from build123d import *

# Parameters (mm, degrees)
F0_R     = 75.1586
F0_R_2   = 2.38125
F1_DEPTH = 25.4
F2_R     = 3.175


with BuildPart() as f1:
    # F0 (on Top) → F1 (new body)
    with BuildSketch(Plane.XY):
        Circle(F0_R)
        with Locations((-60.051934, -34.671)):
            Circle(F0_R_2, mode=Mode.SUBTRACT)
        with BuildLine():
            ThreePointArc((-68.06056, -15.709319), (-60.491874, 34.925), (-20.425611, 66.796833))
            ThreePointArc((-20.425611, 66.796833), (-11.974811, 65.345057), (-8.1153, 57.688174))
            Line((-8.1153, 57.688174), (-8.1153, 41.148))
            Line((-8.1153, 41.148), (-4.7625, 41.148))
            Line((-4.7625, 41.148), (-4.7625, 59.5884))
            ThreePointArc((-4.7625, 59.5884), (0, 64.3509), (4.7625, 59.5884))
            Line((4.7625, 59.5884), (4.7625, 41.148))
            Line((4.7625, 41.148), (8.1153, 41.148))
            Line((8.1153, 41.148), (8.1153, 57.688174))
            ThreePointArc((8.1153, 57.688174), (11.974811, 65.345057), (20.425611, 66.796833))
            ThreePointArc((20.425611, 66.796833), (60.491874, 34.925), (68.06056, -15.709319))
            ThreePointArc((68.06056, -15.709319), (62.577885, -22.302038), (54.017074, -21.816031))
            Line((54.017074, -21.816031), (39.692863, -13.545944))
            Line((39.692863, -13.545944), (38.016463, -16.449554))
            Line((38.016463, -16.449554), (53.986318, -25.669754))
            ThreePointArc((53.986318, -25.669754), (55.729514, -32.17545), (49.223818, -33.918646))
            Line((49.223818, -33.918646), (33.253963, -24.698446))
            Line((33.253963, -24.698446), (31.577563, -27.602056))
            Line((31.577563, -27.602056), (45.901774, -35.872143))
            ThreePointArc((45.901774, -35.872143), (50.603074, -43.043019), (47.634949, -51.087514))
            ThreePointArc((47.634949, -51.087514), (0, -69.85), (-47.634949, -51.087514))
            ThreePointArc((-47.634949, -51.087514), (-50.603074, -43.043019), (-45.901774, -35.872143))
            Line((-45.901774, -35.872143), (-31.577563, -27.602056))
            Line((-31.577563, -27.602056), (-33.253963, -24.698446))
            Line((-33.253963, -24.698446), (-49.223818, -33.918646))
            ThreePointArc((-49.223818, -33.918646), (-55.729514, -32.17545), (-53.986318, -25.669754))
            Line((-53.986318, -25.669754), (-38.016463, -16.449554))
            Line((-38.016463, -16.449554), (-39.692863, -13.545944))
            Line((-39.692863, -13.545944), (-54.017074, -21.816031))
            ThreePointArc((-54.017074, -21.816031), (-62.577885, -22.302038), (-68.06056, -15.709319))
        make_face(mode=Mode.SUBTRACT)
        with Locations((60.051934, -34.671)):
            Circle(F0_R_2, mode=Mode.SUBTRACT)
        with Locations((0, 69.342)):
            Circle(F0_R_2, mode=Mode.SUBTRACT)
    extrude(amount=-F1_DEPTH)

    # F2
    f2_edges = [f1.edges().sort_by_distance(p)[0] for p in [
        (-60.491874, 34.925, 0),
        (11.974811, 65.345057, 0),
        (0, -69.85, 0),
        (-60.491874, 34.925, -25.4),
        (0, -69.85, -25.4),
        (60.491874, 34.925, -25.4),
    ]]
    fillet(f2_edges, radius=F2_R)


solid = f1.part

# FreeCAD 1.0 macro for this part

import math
import FreeCAD as App
import Part
import Sketcher

V = App.Vector
Q = App.Units.Quantity


def edges_at(feature, points):
    """Names of the edges that pass closest to the given points."""
    edges = feature.Shape.Edges
    near = lambda p: min(range(len(edges)), key=lambda i: edges[i].distToShape(Part.Vertex(*p))[0])
    return sorted({f"Edge{near(p) + 1}" for p in points})

doc = App.newDocument("Part")
params = doc.addObject("Spreadsheet::Sheet", "Params")
for row, (alias, value) in enumerate([
    ("sketch1_radius", "2.75 in"),
    ("sketch1_radius2", "2.75 in"),
    ("sketch1_diameter", "5.918 in"),
    ("sketch1_diameter2", "0.1875 in"),
    ("sketch1_radius3", "0.375 in"),
    ("pad1_length", "1 in"),
    ("fillet_radius", "0.125 in"),
], start=1):
    params.set(f"A{row}", alias)
    params.set(f"B{row}", "=" + value)
    params.setAlias(f"B{row}", alias)

body = doc.addObject("PartDesign::Body", "Body")

# Sketch on XY plane
sketch1 = doc.addObject("Sketcher::SketchObject", "Sketch")
body.addObject(sketch1)
sketch1.AttachmentSupport = (doc.XY_Plane, [""])
sketch1.MapMode = "FlatFace"
sketch1.addGeometry(Part.Circle(V(0, 0, 0), V(0, 0, 1), 75.1586), False)
sketch1.addGeometry(Part.Circle(V(-60.051934, -34.671, 0), V(0, 0, 1), 2.38125), False)
sketch1.addGeometry(Part.Circle(V(60.051934, -34.671, 0), V(0, 0, 1), 2.38125), False)
sketch1.addGeometry(Part.ArcOfCircle(Part.Circle(V(-58.779574, -13.567138, 0), V(0, 0, 1), 9.525001), math.radians(-167.002953), math.radians(-60.000001)), False)
sketch1.addGeometry(Part.ArcOfCircle(Part.Circle(V(0.000001, -0.000001, 0), V(0, 0, 1), 69.850001), math.radians(107.002958), math.radians(192.997042)), False)
sketch1.addGeometry(Part.ArcOfCircle(Part.Circle(V(-17.6403, 57.688174, 0), V(0, 0, 1), 9.525), math.radians(0.000002), math.radians(107.002958)), False)
sketch1.addGeometry(Part.LineSegment(V(-8.1153, 57.688174, 0), V(-8.1153, 41.148, 0)), False)
sketch1.addGeometry(Part.LineSegment(V(-8.1153, 41.148, 0), V(-4.7625, 41.148, 0)), False)
sketch1.addGeometry(Part.LineSegment(V(-4.7625, 41.148, 0), V(-4.7625, 59.5884, 0)), False)
sketch1.addGeometry(Part.ArcOfCircle(Part.Circle(V(0, 59.5884, 0), V(0, 0, 1), 4.7625), math.radians(0), math.radians(180)), False)
sketch1.addGeometry(Part.LineSegment(V(4.7625, 59.5884, 0), V(4.7625, 41.148, 0)), False)
sketch1.addGeometry(Part.LineSegment(V(4.7625, 41.148, 0), V(8.1153, 41.148, 0)), False)
sketch1.addGeometry(Part.LineSegment(V(8.1153, 41.148, 0), V(8.1153, 57.688174, 0)), False)
sketch1.addGeometry(Part.ArcOfCircle(Part.Circle(V(17.6403, 57.688174, 0), V(0, 0, 1), 9.525), math.radians(72.997042), math.radians(179.999998)), False)
sketch1.addGeometry(Part.ArcOfCircle(Part.Circle(V(-0.000001, -0.000001, 0), V(0, 0, 1), 69.850001), math.radians(-12.997042), math.radians(72.997042)), False)
sketch1.addGeometry(Part.ArcOfCircle(Part.Circle(V(58.779574, -13.567138, 0), V(0, 0, 1), 9.525001), math.radians(-119.999999), math.radians(-12.997047)), False)
sketch1.addGeometry(Part.LineSegment(V(54.017074, -21.816031, 0), V(39.692863, -13.545944, 0)), False)
sketch1.addGeometry(Part.LineSegment(V(39.692863, -13.545944, 0), V(38.016463, -16.449554, 0)), False)
sketch1.addGeometry(Part.LineSegment(V(38.016463, -16.449554, 0), V(53.986318, -25.669754, 0)), False)
sketch1.addGeometry(Part.ArcOfCircle(Part.Circle(V(51.605068, -29.7942, 0), V(0, 0, 1), 4.7625), math.radians(-120), math.radians(60)), False)
sketch1.addGeometry(Part.LineSegment(V(49.223818, -33.918646, 0), V(33.253963, -24.698446, 0)), False)
sketch1.addGeometry(Part.LineSegment(V(33.253963, -24.698446, 0), V(31.577563, -27.602056, 0)), False)
sketch1.addGeometry(Part.LineSegment(V(31.577563, -27.602056, 0), V(45.901774, -35.872143, 0)), False)
sketch1.addGeometry(Part.ArcOfCircle(Part.Circle(V(41.139275, -44.121035, 0), V(0, 0, 1), 9.525), math.radians(-47.002958), math.radians(60.000003)), False)
sketch1.addGeometry(Part.ArcOfCircle(Part.Circle(V(0, -0.000001, 0), V(0, 0, 1), 69.849999), math.radians(-132.997044), math.radians(-47.002956)), False)
sketch1.addGeometry(Part.ArcOfCircle(Part.Circle(V(-41.139275, -44.121035, 0), V(0, 0, 1), 9.525), math.radians(119.999997), math.radians(227.002958)), False)
sketch1.addGeometry(Part.LineSegment(V(-45.901774, -35.872143, 0), V(-31.577563, -27.602056, 0)), False)
sketch1.addGeometry(Part.LineSegment(V(-31.577563, -27.602056, 0), V(-33.253963, -24.698446, 0)), False)
sketch1.addGeometry(Part.LineSegment(V(-33.253963, -24.698446, 0), V(-49.223818, -33.918646, 0)), False)
sketch1.addGeometry(Part.ArcOfCircle(Part.Circle(V(-51.605068, -29.7942, 0), V(0, 0, 1), 4.7625), math.radians(120), math.radians(300)), False)
sketch1.addGeometry(Part.LineSegment(V(-53.986318, -25.669754, 0), V(-38.016463, -16.449554, 0)), False)
sketch1.addGeometry(Part.LineSegment(V(-38.016463, -16.449554, 0), V(-39.692863, -13.545944, 0)), False)
sketch1.addGeometry(Part.LineSegment(V(-39.692863, -13.545944, 0), V(-54.017074, -21.816031, 0)), False)
sketch1.addGeometry(Part.Circle(V(0, 69.342, 0), V(0, 0, 1), 2.38125), False)
sketch1.addConstraint(Sketcher.Constraint("Tangent", 3, 1, 4, 2))
sketch1.addConstraint(Sketcher.Constraint("Tangent", 4, 1, 5, 2))
sketch1.addConstraint(Sketcher.Constraint("Tangent", 5, 1, 6, 1))
sketch1.addConstraint(Sketcher.Constraint("Coincident", 6, 2, 7, 1))
sketch1.addConstraint(Sketcher.Constraint("Coincident", 7, 2, 8, 1))
sketch1.addConstraint(Sketcher.Constraint("Tangent", 8, 2, 9, 2))
sketch1.addConstraint(Sketcher.Constraint("Tangent", 9, 1, 10, 1))
sketch1.addConstraint(Sketcher.Constraint("Coincident", 10, 2, 11, 1))
sketch1.addConstraint(Sketcher.Constraint("Coincident", 11, 2, 12, 1))
sketch1.addConstraint(Sketcher.Constraint("Tangent", 12, 2, 13, 2))
sketch1.addConstraint(Sketcher.Constraint("Tangent", 13, 1, 14, 2))
sketch1.addConstraint(Sketcher.Constraint("Tangent", 14, 1, 15, 2))
sketch1.addConstraint(Sketcher.Constraint("Tangent", 15, 1, 16, 1))
sketch1.addConstraint(Sketcher.Constraint("Coincident", 16, 2, 17, 1))
sketch1.addConstraint(Sketcher.Constraint("Coincident", 17, 2, 18, 1))
sketch1.addConstraint(Sketcher.Constraint("Tangent", 18, 2, 19, 2))
sketch1.addConstraint(Sketcher.Constraint("Tangent", 19, 1, 20, 1))
sketch1.addConstraint(Sketcher.Constraint("Coincident", 20, 2, 21, 1))
sketch1.addConstraint(Sketcher.Constraint("Coincident", 21, 2, 22, 1))
sketch1.addConstraint(Sketcher.Constraint("Tangent", 22, 2, 23, 2))
sketch1.addConstraint(Sketcher.Constraint("Tangent", 23, 1, 24, 2))
sketch1.addConstraint(Sketcher.Constraint("Tangent", 24, 1, 25, 2))
sketch1.addConstraint(Sketcher.Constraint("Tangent", 25, 1, 26, 1))
sketch1.addConstraint(Sketcher.Constraint("Coincident", 26, 2, 27, 1))
sketch1.addConstraint(Sketcher.Constraint("Coincident", 27, 2, 28, 1))
sketch1.addConstraint(Sketcher.Constraint("Tangent", 28, 2, 29, 2))
sketch1.addConstraint(Sketcher.Constraint("Tangent", 29, 1, 30, 1))
sketch1.addConstraint(Sketcher.Constraint("Coincident", 30, 2, 31, 1))
sketch1.addConstraint(Sketcher.Constraint("Coincident", 31, 2, 32, 1))
sketch1.addConstraint(Sketcher.Constraint("Tangent", 32, 2, 3, 2))
sketch1.addConstraint(Sketcher.Constraint("Vertical", 6))
sketch1.addConstraint(Sketcher.Constraint("Horizontal", 7))
sketch1.addConstraint(Sketcher.Constraint("Vertical", 8))
sketch1.addConstraint(Sketcher.Constraint("Vertical", 10))
sketch1.addConstraint(Sketcher.Constraint("Horizontal", 11))
sketch1.addConstraint(Sketcher.Constraint("Vertical", 12))
sketch1.addConstraint(Sketcher.Constraint("Coincident", 0, 3, -1, 1))
sketch1.addConstraint(Sketcher.Constraint("Coincident", 4, 3, -1, 1))
sketch1.addConstraint(Sketcher.Constraint("Coincident", 14, 3, -1, 1))
sketch1.addConstraint(Sketcher.Constraint("Coincident", 24, 3, -1, 1))
sketch1.addConstraint(Sketcher.Constraint("Equal", 1, 2))
sketch1.addConstraint(Sketcher.Constraint("Equal", 3, 5))
sketch1.addConstraint(Sketcher.Constraint("Equal", 5, 13))
sketch1.addConstraint(Sketcher.Constraint("Equal", 4, 14))
sketch1.addConstraint(Sketcher.Constraint("Equal", 13, 15))
sketch1.addConstraint(Sketcher.Constraint("Equal", 9, 19))
sketch1.addConstraint(Sketcher.Constraint("Equal", 15, 23))
sketch1.addConstraint(Sketcher.Constraint("Equal", 23, 25))
sketch1.addConstraint(Sketcher.Constraint("Equal", 19, 29))
sketch1.addConstraint(Sketcher.Constraint("Equal", 2, 33))
sketch1.addConstraint(Sketcher.Constraint("Symmetric", 1, 3, 2, 3, -2))
sketch1.addConstraint(Sketcher.Constraint("Symmetric", 19, 3, 29, 3, -2))
sketch1.addConstraint(Sketcher.Constraint("Symmetric", 7, 2, 10, 2, -2))
sketch1.addConstraint(Sketcher.Constraint("Symmetric", 22, 2, 25, 1, -2))
sketch1.addConstraint(Sketcher.Constraint("Symmetric", 20, 2, 27, 2, -2))
sketch1.addConstraint(Sketcher.Constraint("Symmetric", 17, 2, 30, 2, -2))
sketch1.addConstraint(Sketcher.Constraint("Symmetric", 16, 2, 31, 2, -2))
sketch1.addConstraint(Sketcher.Constraint("PointOnObject", 33, 3, -2))
sketch1.addConstraint(Sketcher.Constraint("Perpendicular", 16, 17))
sketch1.addConstraint(Sketcher.Constraint("Perpendicular", 17, 18))
sketch1.addConstraint(Sketcher.Constraint("Parallel", 18, 20))
sketch1.addConstraint(Sketcher.Constraint("Perpendicular", 20, 21))
sketch1.addConstraint(Sketcher.Constraint("Perpendicular", 21, 22))
sketch1.addConstraint(Sketcher.Constraint("Perpendicular", 26, 27))
sketch1.addConstraint(Sketcher.Constraint("Perpendicular", 31, 32))
sketch1.addConstraint(Sketcher.Constraint("Horizontal", 5, 3, 13, 3))
sketch1.addConstraint(Sketcher.Constraint("Equal", 18, 20))
sketch1.addConstraint(Sketcher.Constraint("Equal", 17, 21))
sketch1.addConstraint(Sketcher.Constraint("Equal", 16, 22))
sketch1.addConstraint(Sketcher.Constraint("Radius", 4, Q("2.75 in")))
sketch1.addConstraint(Sketcher.Constraint("Radius", 24, Q("2.75 in")))
sketch1.addConstraint(Sketcher.Constraint("Diameter", 0, Q("5.918 in")))
sketch1.addConstraint(Sketcher.Constraint("Diameter", 1, Q("0.1875 in")))
sketch1.addConstraint(Sketcher.Constraint("Angle", 16, Q("150 deg")))
sketch1.addConstraint(Sketcher.Constraint("Radius", 3, Q("0.375 in")))
sketch1.addConstraint(Sketcher.Constraint("Radius", 9, Q("0.1875 in")))
sketch1.addConstraint(Sketcher.Constraint("DistanceX", 7, 1, 7, 2, Q("0.132 in")))
sketch1.addConstraint(Sketcher.Constraint("DistanceY", 8, 1, 8, 2, Q("0.726 in")))
sketch1.addConstraint(Sketcher.Constraint("DistanceY", -1, 1, 33, 3, Q("2.73 in")))
sketch1.addConstraint(Sketcher.Constraint("DistanceY", -1, 1, 6, 2, Q("1.62 in")))
sketch1.addConstraint(Sketcher.Constraint("Distance", 17, Q("0.132 in")))
sketch1.addConstraint(Sketcher.Constraint("Distance", 18, Q("0.726 in")))
sketch1.addConstraint(Sketcher.Constraint("DistanceY", 1, 3, -1, 1, Q("1.365 in")))
sketch1.addConstraint(Sketcher.Constraint("DistanceY", 19, 3, -1, 1, Q("1.173 in")))
sketch1.addConstraint(Sketcher.Constraint("DistanceX", 1, 3, 2, 3, 120.103868))
sketch1.setExpression("Constraints[69]", "Params.sketch1_radius")
sketch1.setExpression("Constraints[70]", "Params.sketch1_radius2")
sketch1.setExpression("Constraints[71]", "Params.sketch1_diameter")
sketch1.setExpression("Constraints[72]", "Params.sketch1_diameter2")
sketch1.setExpression("Constraints[74]", "Params.sketch1_radius3")
pad1 = doc.addObject("PartDesign::Pad", "Pad")
body.addObject(pad1)
pad1.Profile = sketch1
pad1.setExpression("Length", "Params.pad1_length")
pad1.Reversed = True
doc.recompute()

fillet = doc.addObject("PartDesign::Fillet", "Fillet")
body.addObject(fillet)
fillet.Base = (pad1, edges_at(pad1, [
    (-60.492, 34.925, 0),
    (11.975, 65.345, 0),
    (0, -69.85, 0),
    (-60.492, 34.925, -25.4),
    (0, -69.85, -25.4),
    (60.492, 34.925, -25.4),
]))
fillet.setExpression("Radius", "Params.fillet_radius")

doc.recompute()
